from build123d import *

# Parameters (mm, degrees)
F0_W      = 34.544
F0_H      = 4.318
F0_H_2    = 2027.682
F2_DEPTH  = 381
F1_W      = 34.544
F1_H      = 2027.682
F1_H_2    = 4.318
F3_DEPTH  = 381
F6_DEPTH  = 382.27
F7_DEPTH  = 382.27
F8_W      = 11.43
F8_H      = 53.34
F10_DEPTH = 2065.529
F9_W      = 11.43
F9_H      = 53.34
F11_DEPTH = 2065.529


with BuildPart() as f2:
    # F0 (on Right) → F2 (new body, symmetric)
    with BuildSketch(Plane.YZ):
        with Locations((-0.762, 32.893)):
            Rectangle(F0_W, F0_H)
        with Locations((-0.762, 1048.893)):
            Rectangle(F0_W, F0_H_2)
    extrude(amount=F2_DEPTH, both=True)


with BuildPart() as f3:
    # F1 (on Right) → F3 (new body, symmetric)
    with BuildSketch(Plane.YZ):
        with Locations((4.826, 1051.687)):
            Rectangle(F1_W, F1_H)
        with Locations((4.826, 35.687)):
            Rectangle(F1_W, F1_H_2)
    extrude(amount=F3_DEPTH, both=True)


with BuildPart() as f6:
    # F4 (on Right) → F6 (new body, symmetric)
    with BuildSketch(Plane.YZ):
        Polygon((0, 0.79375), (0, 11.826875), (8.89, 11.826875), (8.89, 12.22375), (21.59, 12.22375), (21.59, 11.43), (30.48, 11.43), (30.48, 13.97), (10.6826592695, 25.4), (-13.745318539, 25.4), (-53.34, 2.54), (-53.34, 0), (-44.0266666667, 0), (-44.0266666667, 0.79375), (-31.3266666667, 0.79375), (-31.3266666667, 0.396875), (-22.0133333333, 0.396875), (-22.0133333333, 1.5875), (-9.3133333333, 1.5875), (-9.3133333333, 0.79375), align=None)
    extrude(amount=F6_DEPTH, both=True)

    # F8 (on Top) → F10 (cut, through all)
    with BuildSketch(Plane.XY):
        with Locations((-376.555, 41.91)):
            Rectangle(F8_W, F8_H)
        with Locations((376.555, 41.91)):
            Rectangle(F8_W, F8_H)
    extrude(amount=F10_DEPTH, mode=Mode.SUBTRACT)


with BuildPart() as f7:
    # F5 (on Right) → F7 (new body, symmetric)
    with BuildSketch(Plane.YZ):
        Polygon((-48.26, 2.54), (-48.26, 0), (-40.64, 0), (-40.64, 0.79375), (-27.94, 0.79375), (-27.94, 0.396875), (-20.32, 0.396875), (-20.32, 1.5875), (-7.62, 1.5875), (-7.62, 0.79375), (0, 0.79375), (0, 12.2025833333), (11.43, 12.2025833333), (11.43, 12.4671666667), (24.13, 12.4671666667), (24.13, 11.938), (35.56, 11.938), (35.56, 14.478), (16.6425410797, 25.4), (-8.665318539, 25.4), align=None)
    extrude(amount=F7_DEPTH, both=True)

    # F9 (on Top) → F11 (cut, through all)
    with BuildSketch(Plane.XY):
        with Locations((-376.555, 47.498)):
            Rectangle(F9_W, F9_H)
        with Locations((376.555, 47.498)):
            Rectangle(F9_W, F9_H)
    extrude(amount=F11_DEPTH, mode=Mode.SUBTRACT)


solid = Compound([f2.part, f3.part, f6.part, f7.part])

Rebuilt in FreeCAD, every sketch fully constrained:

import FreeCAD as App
import Part
import Sketcher

V = App.Vector
Q = App.Units.Quantity

doc = App.newDocument("Part")
params = doc.addObject("Spreadsheet::Sheet", "Params")
for row, (alias, value) in enumerate([
    ("sketch1_height", "80 in"),
    ("sketch1_width", "1.36 in"),
    ("pad1_length", "30 in"),
    ("sketch2_height", "80 in"),
    ("sketch2_width", "1.36 in"),
    ("pad2_length", "30 in"),
    ("sketch3_width", "0.5 in"),
    ("sketch3_height", "0.1 in"),
    ("sketch3_length", "0.9 in"),
    ("sketch3_width2", "0.35 in"),
    ("sketch3_height2", "0.015625 in"),
    ("pad3_length", "30.1 in"),
    ("sketch4_height", "2.1 in"),
    ("sketch4_width", "0.45 in"),
    ("sketch5_width", "0.3 in"),
    ("sketch5_width2", "0.5 in"),
    ("sketch5_height", "0.1 in"),
    ("sketch5_width3", "0.45 in"),
    ("sketch5_length", "0.86 in"),
    ("pad4_length", "30.1 in"),
    ("sketch6_height", "2.1 in"),
    ("sketch6_width", "0.45 in"),
], start=1):
    params.set(f"A{row}", alias)
    params.set(f"B{row}", "=" + value)
    params.setAlias(f"B{row}", alias)

body = doc.addObject("PartDesign::Body", "Body")

# Sketch on YZ plane
sketch1 = body.newObject("Sketcher::SketchObject", "Sketch")
sketch1.AttachmentSupport = (doc.getObject("YZ_Plane"), [""])
sketch1.MapMode = "FlatFace"
sketch1.addGeometry([
    Part.LineSegment(V(-18.034, 30.734, 0), V(16.51, 30.734, 0)),
    Part.LineSegment(V(16.51, 30.734, 0), V(16.51, 2062.734, 0)),
    Part.LineSegment(V(16.51, 2062.734, 0), V(-18.034, 2062.734, 0)),
    Part.LineSegment(V(-18.034, 2062.734, 0), V(-18.034, 30.734, 0)),
], False)
sketch1.addConstraint([
    Sketcher.Constraint("Coincident", 0, 2, 1, 1),
    Sketcher.Constraint("Coincident", 1, 2, 2, 1),
    Sketcher.Constraint("Coincident", 2, 2, 3, 1),
    Sketcher.Constraint("Coincident", 3, 2, 0, 1),
    Sketcher.Constraint("Horizontal", 0),
    Sketcher.Constraint("Vertical", 1),
    Sketcher.Constraint("Horizontal", 2),
    Sketcher.Constraint("Vertical", 3),
    Sketcher.Constraint("DistanceY", 1, 1, 1, 2, Q("80 in")),
    Sketcher.Constraint("DistanceX", 0, 1, 0, 2, Q("1.36 in")),
    Sketcher.Constraint("DistanceX", -1, 1, 0, 2, Q("0.65 in")),
    Sketcher.Constraint("DistanceY", -1, 1, 0, 2, Q("1.21 in")),
])
sketch1.setExpression("Constraints[8]", "Params.sketch1_height")
sketch1.setExpression("Constraints[9]", "Params.sketch1_width")
pad1 = body.newObject("PartDesign::Pad", "Pad")
pad1.Profile = sketch1
pad1.setExpression("Length", "Params.pad1_length")
pad1.Midplane = True
body2 = doc.addObject("PartDesign::Body", "Body001")

# Sketch on YZ plane
sketch2 = body2.newObject("Sketcher::SketchObject", "Sketch001")
sketch2.AttachmentSupport = (doc.getObject("YZ_Plane001"), [""])
sketch2.MapMode = "FlatFace"
sketch2.addGeometry([
    Part.LineSegment(V(-12.446, 2065.528, 0), V(-12.446, 33.528, 0)),
    Part.LineSegment(V(-12.446, 33.528, 0), V(22.098, 33.528, 0)),
    Part.LineSegment(V(22.098, 33.528, 0), V(22.098, 2065.528, 0)),
    Part.LineSegment(V(22.098, 2065.528, 0), V(-12.446, 2065.528, 0)),
], False)
sketch2.addConstraint([
    Sketcher.Constraint("Coincident", 0, 2, 1, 1),
    Sketcher.Constraint("Coincident", 1, 2, 2, 1),
    Sketcher.Constraint("Coincident", 2, 2, 3, 1),
    Sketcher.Constraint("Coincident", 3, 2, 0, 1),
    Sketcher.Constraint("Vertical", 0),
    Sketcher.Constraint("Horizontal", 1),
    Sketcher.Constraint("Vertical", 2),
    Sketcher.Constraint("Horizontal", 3),
    Sketcher.Constraint("DistanceY", 0, 2, 0, 1, Q("80 in")),
    Sketcher.Constraint("DistanceX", 1, 1, 1, 2, Q("1.36 in")),
    Sketcher.Constraint("DistanceX", 0, 2, -1, 1, Q("0.49 in")),
    Sketcher.Constraint("DistanceY", -1, 1, 0, 2, Q("1.32 in")),
])
sketch2.setExpression("Constraints[8]", "Params.sketch2_height")
sketch2.setExpression("Constraints[9]", "Params.sketch2_width")
pad2 = body2.newObject("PartDesign::Pad", "Pad001")
pad2.Profile = sketch2
pad2.setExpression("Length", "Params.pad2_length")
pad2.Midplane = True
body3 = doc.addObject("PartDesign::Body", "Body002")

# Sketch on YZ plane
sketch3 = body3.newObject("Sketcher::SketchObject", "Sketch002")
sketch3.AttachmentSupport = (doc.getObject("YZ_Plane002"), [""])
sketch3.MapMode = "FlatFace"
sketch3.addGeometry([
    Part.LineSegment(V(0, 0.79375, 0), V(0, 11.826875, 0)),  # 0
    Part.LineSegment(V(0, 11.826875, 0), V(8.89, 11.826875, 0)),  # 1
    Part.LineSegment(V(8.89, 11.826875, 0), V(8.89, 12.22375, 0)),  # 2
    Part.LineSegment(V(8.89, 12.22375, 0), V(21.59, 12.22375, 0)),  # 3
    Part.LineSegment(V(21.59, 12.22375, 0), V(21.59, 11.43, 0)),  # 4
    Part.LineSegment(V(21.59, 11.43, 0), V(30.48, 11.43, 0)),  # 5
    Part.LineSegment(V(30.48, 11.43, 0), V(30.48, 13.97, 0)),  # 6
    Part.LineSegment(V(30.48, 13.97, 0), V(10.682659, 25.4, 0)),  # 7
    Part.LineSegment(V(10.682659, 25.4, 0), V(-13.745319, 25.4, 0)),  # 8
    Part.LineSegment(V(-13.745319, 25.4, 0), V(-53.34, 2.54, 0)),  # 9
    Part.LineSegment(V(-53.34, 2.54, 0), V(-53.34, 0, 0)),  # 10
    Part.LineSegment(V(-53.34, 0, 0), V(-44.026667, 0, 0)),  # 11
    Part.LineSegment(V(-44.026667, 0, 0), V(-44.026667, 0.79375, 0)),  # 12
    Part.LineSegment(V(-44.026667, 0.79375, 0), V(-31.326667, 0.79375, 0)),  # 13
    Part.LineSegment(V(-31.326667, 0.79375, 0), V(-31.326667, 0.396875, 0)),  # 14
    Part.LineSegment(V(-31.326667, 0.396875, 0), V(-22.013333, 0.396875, 0)),  # 15
    Part.LineSegment(V(-22.013333, 0.396875, 0), V(-22.013333, 1.5875, 0)),  # 16
    Part.LineSegment(V(-22.013333, 1.5875, 0), V(-9.313333, 1.5875, 0)),  # 17
    Part.LineSegment(V(-9.313333, 1.5875, 0), V(-9.313333, 0.79375, 0)),  # 18
    Part.LineSegment(V(-9.313333, 0.79375, 0), V(0, 0.79375, 0)),  # 19
], False)
sketch3.addConstraint([
    Sketcher.Constraint("Coincident", 0, 2, 1, 1),
    Sketcher.Constraint("Coincident", 1, 2, 2, 1),
    Sketcher.Constraint("Coincident", 2, 2, 3, 1),
    Sketcher.Constraint("Coincident", 3, 2, 4, 1),
    Sketcher.Constraint("Coincident", 4, 2, 5, 1),
    Sketcher.Constraint("Coincident", 5, 2, 6, 1),
    Sketcher.Constraint("Coincident", 6, 2, 7, 1),
    Sketcher.Constraint("Coincident", 7, 2, 8, 1),
    Sketcher.Constraint("Coincident", 8, 2, 9, 1),
    Sketcher.Constraint("Coincident", 9, 2, 10, 1),
    Sketcher.Constraint("Coincident", 10, 2, 11, 1),
    Sketcher.Constraint("Coincident", 11, 2, 12, 1),
    Sketcher.Constraint("Coincident", 12, 2, 13, 1),
    Sketcher.Constraint("Coincident", 13, 2, 14, 1),
    Sketcher.Constraint("Coincident", 14, 2, 15, 1),
    Sketcher.Constraint("Coincident", 15, 2, 16, 1),
    Sketcher.Constraint("Coincident", 16, 2, 17, 1),
    Sketcher.Constraint("Coincident", 17, 2, 18, 1),
    Sketcher.Constraint("Coincident", 18, 2, 19, 1),
    Sketcher.Constraint("Coincident", 19, 2, 0, 1),
    Sketcher.Constraint("Vertical", 0),
    Sketcher.Constraint("Horizontal", 1),
    Sketcher.Constraint("Vertical", 2),
    Sketcher.Constraint("Horizontal", 3),
    Sketcher.Constraint("Vertical", 4),
    Sketcher.Constraint("Horizontal", 5),
    Sketcher.Constraint("Vertical", 6),
    Sketcher.Constraint("Horizontal", 8),
    Sketcher.Constraint("Vertical", 10),
    Sketcher.Constraint("Horizontal", 11),
    Sketcher.Constraint("Vertical", 12),
    Sketcher.Constraint("Horizontal", 13),
    Sketcher.Constraint("Vertical", 14),
    Sketcher.Constraint("Horizontal", 15),
    Sketcher.Constraint("Vertical", 16),
    Sketcher.Constraint("Horizontal", 17),
    Sketcher.Constraint("Vertical", 18),
    Sketcher.Constraint("Horizontal", 19),
    Sketcher.Constraint("PointOnObject", 0, 2, -2),
    Sketcher.Constraint("PointOnObject", 10, 2, -1),
    Sketcher.Constraint("Horizontal", 13, 2, 18, 2),
    Sketcher.Constraint("Equal", 1, 5),
    Sketcher.Constraint("Equal", 3, 13),
    Sketcher.Constraint("Equal", 11, 15),
    Sketcher.Constraint("Equal", 13, 17),
    Sketcher.Constraint("Equal", 15, 19),
    Sketcher.Constraint("Equal", 6, 10),
    Sketcher.Constraint("Equal", 4, 12),
    Sketcher.Constraint("Equal", 2, 14),
    Sketcher.Constraint("Equal", 12, 18),
    Sketcher.Constraint("DistanceX", 3, 1, 3, 2, Q("0.5 in")),
    Sketcher.Constraint("DistanceY", 6, 1, 6, 2, Q("0.1 in")),
    Sketcher.Constraint("DistanceY", -1, 1, 7, 2, Q("1 in")),
    Sketcher.Constraint("Angle", 7, Q("150 deg")),
    Sketcher.Constraint("Angle", 9, Q("-150 deg")),
    Sketcher.Constraint("Distance", 7, Q("0.9 in")),
    Sketcher.Constraint("DistanceX", 1, 1, 1, 2, Q("0.35 in")),
    Sketcher.Constraint("DistanceX", 9, 2, -1, 1, Q("2.1 in")),
    Sketcher.Constraint("DistanceY", 2, 1, 2, 2, Q("0.015625 in")),
    Sketcher.Constraint("DistanceY", 4, 2, 4, 1, Q("0.03125 in")),
])
sketch3.setExpression("Constraints[50]", "Params.sketch3_width")
sketch3.setExpression("Constraints[51]", "Params.sketch3_height")
sketch3.setExpression("Constraints[55]", "Params.sketch3_length")
sketch3.setExpression("Constraints[56]", "Params.sketch3_width2")
sketch3.setExpression("Constraints[58]", "Params.sketch3_height2")
pad3 = body3.newObject("PartDesign::Pad", "Pad002")
pad3.Profile = sketch3
pad3.setExpression("Length", "Params.pad3_length")
pad3.Midplane = True

# Sketch on XY plane
sketch4 = body3.newObject("Sketcher::SketchObject", "Sketch003")
sketch4.AttachmentSupport = (doc.getObject("XY_Plane002"), [""])
sketch4.MapMode = "FlatFace"
sketch4.addGeometry([
    Part.LineSegment(V(-382.27, 68.58, 0), V(-382.27, 15.24, 0)),  # 0
    Part.LineSegment(V(-382.27, 15.24, 0), V(-370.84, 15.24, 0)),  # 1
    Part.LineSegment(V(-370.84, 15.24, 0), V(-370.84, 68.58, 0)),  # 2
    Part.LineSegment(V(-370.84, 68.58, 0), V(-382.27, 68.58, 0)),  # 3
    Part.LineSegment(V(370.84, 68.58, 0), V(370.84, 15.24, 0)),  # 4
    Part.LineSegment(V(370.84, 15.24, 0), V(382.27, 15.24, 0)),  # 5
    Part.LineSegment(V(382.27, 15.24, 0), V(382.27, 68.58, 0)),  # 6
    Part.LineSegment(V(382.27, 68.58, 0), V(370.84, 68.58, 0)),  # 7
], False)
sketch4.addConstraint([
    Sketcher.Constraint("Coincident", 0, 2, 1, 1),
    Sketcher.Constraint("Coincident", 1, 2, 2, 1),
    Sketcher.Constraint("Coincident", 2, 2, 3, 1),
    Sketcher.Constraint("Coincident", 3, 2, 0, 1),
    Sketcher.Constraint("Coincident", 4, 2, 5, 1),
    Sketcher.Constraint("Coincident", 5, 2, 6, 1),
    Sketcher.Constraint("Coincident", 6, 2, 7, 1),
    Sketcher.Constraint("Coincident", 7, 2, 4, 1),
    Sketcher.Constraint("Vertical", 0),
    Sketcher.Constraint("Horizontal", 1),
    Sketcher.Constraint("Vertical", 2),
    Sketcher.Constraint("Horizontal", 3),
    Sketcher.Constraint("Vertical", 4),
    Sketcher.Constraint("Horizontal", 5),
    Sketcher.Constraint("Vertical", 6),
    Sketcher.Constraint("Horizontal", 7),
    Sketcher.Constraint("Symmetric", 1, 2, 4, 2, -2),
    Sketcher.Constraint("Symmetric", 3, 2, 6, 2, -2),
    Sketcher.Constraint("DistanceY", 0, 2, 0, 1, Q("2.1 in")),
    Sketcher.Constraint("DistanceX", 1, 1, 1, 2, Q("0.45 in")),
    Sketcher.Constraint("DistanceY", -1, 1, 0, 2, Q("0.6 in")),
    Sketcher.Constraint("DistanceX", 1, 2, -1, 1, Q("14.6 in")),
])
sketch4.setExpression("Constraints[18]", "Params.sketch4_height")
sketch4.setExpression("Constraints[19]", "Params.sketch4_width")
pocket1 = body3.newObject("PartDesign::Pocket", "Pocket")
pocket1.Profile = sketch4
pocket1.Type = "ThroughAll"
pocket1.Reversed = True
body4 = doc.addObject("PartDesign::Body", "Body003")

# Sketch on YZ plane
sketch5 = body4.newObject("Sketcher::SketchObject", "Sketch004")
sketch5.AttachmentSupport = (doc.getObject("YZ_Plane003"), [""])
sketch5.MapMode = "FlatFace"
sketch5.addGeometry([
    Part.LineSegment(V(-48.26, 2.54, 0), V(-48.26, 0, 0)),  # 0
    Part.LineSegment(V(-48.26, 0, 0), V(-40.64, 0, 0)),  # 1
    Part.LineSegment(V(-40.64, 0, 0), V(-40.64, 0.79375, 0)),  # 2
    Part.LineSegment(V(-40.64, 0.79375, 0), V(-27.94, 0.79375, 0)),  # 3
    Part.LineSegment(V(-27.94, 0.79375, 0), V(-27.94, 0.396875, 0)),  # 4
    Part.LineSegment(V(-27.94, 0.396875, 0), V(-20.32, 0.396875, 0)),  # 5
    Part.LineSegment(V(-20.32, 0.396875, 0), V(-20.32, 1.5875, 0)),  # 6
    Part.LineSegment(V(-20.32, 1.5875, 0), V(-7.62, 1.5875, 0)),  # 7
    Part.LineSegment(V(-7.62, 1.5875, 0), V(-7.62, 0.79375, 0)),  # 8
    Part.LineSegment(V(-7.62, 0.79375, 0), V(0, 0.79375, 0)),  # 9
    Part.LineSegment(V(0, 0.79375, 0), V(0, 12.202583, 0)),  # 10
    Part.LineSegment(V(0, 12.202583, 0), V(11.43, 12.202583, 0)),  # 11
    Part.LineSegment(V(11.43, 12.202583, 0), V(11.43, 12.467167, 0)),  # 12
    Part.LineSegment(V(11.43, 12.467167, 0), V(24.13, 12.467167, 0)),  # 13
    Part.LineSegment(V(24.13, 12.467167, 0), V(24.13, 11.938, 0)),  # 14
    Part.LineSegment(V(24.13, 11.938, 0), V(35.56, 11.938, 0)),  # 15
    Part.LineSegment(V(35.56, 11.938, 0), V(35.56, 14.478, 0)),  # 16
    Part.LineSegment(V(35.56, 14.478, 0), V(16.642541, 25.4, 0)),  # 17
    Part.LineSegment(V(16.642541, 25.4, 0), V(-8.665319, 25.4, 0)),  # 18
    Part.LineSegment(V(-8.665319, 25.4, 0), V(-48.26, 2.54, 0)),  # 19
], False)
sketch5.addConstraint([
    Sketcher.Constraint("Coincident", 0, 2, 1, 1),
    Sketcher.Constraint("Coincident", 1, 2, 2, 1),
    Sketcher.Constraint("Coincident", 2, 2, 3, 1),
    Sketcher.Constraint("Coincident", 3, 2, 4, 1),
    Sketcher.Constraint("Coincident", 4, 2, 5, 1),
    Sketcher.Constraint("Coincident", 5, 2, 6, 1),
    Sketcher.Constraint("Coincident", 6, 2, 7, 1),
    Sketcher.Constraint("Coincident", 7, 2, 8, 1),
    Sketcher.Constraint("Coincident", 8, 2, 9, 1),
    Sketcher.Constraint("Coincident", 9, 2, 10, 1),
    Sketcher.Constraint("Coincident", 10, 2, 11, 1),
    Sketcher.Constraint("Coincident", 11, 2, 12, 1),
    Sketcher.Constraint("Coincident", 12, 2, 13, 1),
    Sketcher.Constraint("Coincident", 13, 2, 14, 1),
    Sketcher.Constraint("Coincident", 14, 2, 15, 1),
    Sketcher.Constraint("Coincident", 15, 2, 16, 1),
    Sketcher.Constraint("Coincident", 16, 2, 17, 1),
    Sketcher.Constraint("Coincident", 17, 2, 18, 1),
    Sketcher.Constraint("Coincident", 18, 2, 19, 1),
    Sketcher.Constraint("Coincident", 19, 2, 0, 1),
    Sketcher.Constraint("Vertical", 0),
    Sketcher.Constraint("Horizontal", 1),
    Sketcher.Constraint("Vertical", 2),
    Sketcher.Constraint("Horizontal", 3),
    Sketcher.Constraint("Vertical", 4),
    Sketcher.Constraint("Horizontal", 5),
    Sketcher.Constraint("Vertical", 6),
    Sketcher.Constraint("Horizontal", 7),
    Sketcher.Constraint("Vertical", 8),
    Sketcher.Constraint("Horizontal", 9),
    Sketcher.Constraint("Vertical", 10),
    Sketcher.Constraint("Horizontal", 11),
    Sketcher.Constraint("Vertical", 12),
    Sketcher.Constraint("Horizontal", 13),
    Sketcher.Constraint("Vertical", 14),
    Sketcher.Constraint("Horizontal", 15),
    Sketcher.Constraint("Vertical", 16),
    Sketcher.Constraint("Horizontal", 18),
    Sketcher.Constraint("PointOnObject", 0, 2, -1),
    Sketcher.Constraint("PointOnObject", 9, 2, -2),
    Sketcher.Constraint("Horizontal", 3, 2, 8, 2),
    Sketcher.Constraint("Equal", 1, 5),
    Sketcher.Constraint("Equal", 3, 7),
    Sketcher.Constraint("Equal", 5, 9),
    Sketcher.Constraint("Equal", 7, 13),
    Sketcher.Constraint("Equal", 11, 15),
    Sketcher.Constraint("Equal", 2, 8),
    Sketcher.Constraint("Equal", 0, 16),
    Sketcher.Constraint("DistanceX", 1, 1, 1, 2, Q("0.3 in")),
    Sketcher.Constraint("DistanceX", 3, 1, 3, 2, Q("0.5 in")),
    Sketcher.Constraint("DistanceY", 0, 2, 0, 1, Q("0.1 in")),
    Sketcher.Constraint("DistanceY", -1, 1, 17, 2, Q("1 in")),
    Sketcher.Constraint("Angle", 17, Q("150 deg")),
    Sketcher.Constraint("Angle", 19, Q("-150 deg")),
    Sketcher.Constraint("DistanceX", 11, 1, 11, 2, Q("0.45 in")),
    Sketcher.Constraint("Distance", 17, Q("0.86 in")),
    Sketcher.Constraint("DistanceY", 2, 1, 2, 2, Q("0.03125 in")),
    Sketcher.Constraint("DistanceY", 4, 2, 4, 1, Q("0.015625 in")),
    Sketcher.Constraint("DistanceY", 10, 1, 10, 2, 11.408833),
    Sketcher.Constraint("DistanceY", 12, 1, 12, 2, 0.264583),
])
sketch5.setExpression("Constraints[48]", "Params.sketch5_width")
sketch5.setExpression("Constraints[49]", "Params.sketch5_width2")
sketch5.setExpression("Constraints[50]", "Params.sketch5_height")
sketch5.setExpression("Constraints[54]", "Params.sketch5_width3")
sketch5.setExpression("Constraints[55]", "Params.sketch5_length")
pad4 = body4.newObject("PartDesign::Pad", "Pad003")
pad4.Profile = sketch5
pad4.setExpression("Length", "Params.pad4_length")
pad4.Midplane = True

# Sketch on XY plane
sketch6 = body4.newObject("Sketcher::SketchObject", "Sketch005")
sketch6.AttachmentSupport = (doc.getObject("XY_Plane003"), [""])
sketch6.MapMode = "FlatFace"
sketch6.addGeometry([
    Part.LineSegment(V(-382.27, 74.168, 0), V(-382.27, 20.828, 0)),  # 0
    Part.LineSegment(V(-382.27, 20.828, 0), V(-370.84, 20.828, 0)),  # 1
    Part.LineSegment(V(-370.84, 20.828, 0), V(-370.84, 74.168, 0)),  # 2
    Part.LineSegment(V(-370.84, 74.168, 0), V(-382.27, 74.168, 0)),  # 3
    Part.LineSegment(V(370.84, 74.168, 0), V(370.84, 20.828, 0)),  # 4
    Part.LineSegment(V(370.84, 20.828, 0), V(382.27, 20.828, 0)),  # 5
    Part.LineSegment(V(382.27, 20.828, 0), V(382.27, 74.168, 0)),  # 6
    Part.LineSegment(V(382.27, 74.168, 0), V(370.84, 74.168, 0)),  # 7
], False)
sketch6.addConstraint([
    Sketcher.Constraint("Coincident", 0, 2, 1, 1),
    Sketcher.Constraint("Coincident", 1, 2, 2, 1),
    Sketcher.Constraint("Coincident", 2, 2, 3, 1),
    Sketcher.Constraint("Coincident", 3, 2, 0, 1),
    Sketcher.Constraint("Coincident", 4, 2, 5, 1),
    Sketcher.Constraint("Coincident", 5, 2, 6, 1),
    Sketcher.Constraint("Coincident", 6, 2, 7, 1),
    Sketcher.Constraint("Coincident", 7, 2, 4, 1),
    Sketcher.Constraint("Vertical", 0),
    Sketcher.Constraint("Horizontal", 1),
    Sketcher.Constraint("Vertical", 2),
    Sketcher.Constraint("Horizontal", 3),
    Sketcher.Constraint("Vertical", 4),
    Sketcher.Constraint("Horizontal", 5),
    Sketcher.Constraint("Vertical", 6),
    Sketcher.Constraint("Horizontal", 7),
    Sketcher.Constraint("Symmetric", 1, 2, 4, 2, -2),
    Sketcher.Constraint("Symmetric", 3, 2, 6, 2, -2),
    Sketcher.Constraint("DistanceY", 0, 2, 0, 1, Q("2.1 in")),
    Sketcher.Constraint("DistanceX", 1, 1, 1, 2, Q("0.45 in")),
    Sketcher.Constraint("DistanceX", 1, 2, -1, 1, Q("14.6 in")),
    Sketcher.Constraint("DistanceY", -1, 1, 0, 2, Q("0.82 in")),
])
sketch6.setExpression("Constraints[18]", "Params.sketch6_height")
sketch6.setExpression("Constraints[19]", "Params.sketch6_width")
pocket2 = body4.newObject("PartDesign::Pocket", "Pocket001")
pocket2.Profile = sketch6
pocket2.Type = "ThroughAll"
pocket2.Reversed = True

doc.recompute()
